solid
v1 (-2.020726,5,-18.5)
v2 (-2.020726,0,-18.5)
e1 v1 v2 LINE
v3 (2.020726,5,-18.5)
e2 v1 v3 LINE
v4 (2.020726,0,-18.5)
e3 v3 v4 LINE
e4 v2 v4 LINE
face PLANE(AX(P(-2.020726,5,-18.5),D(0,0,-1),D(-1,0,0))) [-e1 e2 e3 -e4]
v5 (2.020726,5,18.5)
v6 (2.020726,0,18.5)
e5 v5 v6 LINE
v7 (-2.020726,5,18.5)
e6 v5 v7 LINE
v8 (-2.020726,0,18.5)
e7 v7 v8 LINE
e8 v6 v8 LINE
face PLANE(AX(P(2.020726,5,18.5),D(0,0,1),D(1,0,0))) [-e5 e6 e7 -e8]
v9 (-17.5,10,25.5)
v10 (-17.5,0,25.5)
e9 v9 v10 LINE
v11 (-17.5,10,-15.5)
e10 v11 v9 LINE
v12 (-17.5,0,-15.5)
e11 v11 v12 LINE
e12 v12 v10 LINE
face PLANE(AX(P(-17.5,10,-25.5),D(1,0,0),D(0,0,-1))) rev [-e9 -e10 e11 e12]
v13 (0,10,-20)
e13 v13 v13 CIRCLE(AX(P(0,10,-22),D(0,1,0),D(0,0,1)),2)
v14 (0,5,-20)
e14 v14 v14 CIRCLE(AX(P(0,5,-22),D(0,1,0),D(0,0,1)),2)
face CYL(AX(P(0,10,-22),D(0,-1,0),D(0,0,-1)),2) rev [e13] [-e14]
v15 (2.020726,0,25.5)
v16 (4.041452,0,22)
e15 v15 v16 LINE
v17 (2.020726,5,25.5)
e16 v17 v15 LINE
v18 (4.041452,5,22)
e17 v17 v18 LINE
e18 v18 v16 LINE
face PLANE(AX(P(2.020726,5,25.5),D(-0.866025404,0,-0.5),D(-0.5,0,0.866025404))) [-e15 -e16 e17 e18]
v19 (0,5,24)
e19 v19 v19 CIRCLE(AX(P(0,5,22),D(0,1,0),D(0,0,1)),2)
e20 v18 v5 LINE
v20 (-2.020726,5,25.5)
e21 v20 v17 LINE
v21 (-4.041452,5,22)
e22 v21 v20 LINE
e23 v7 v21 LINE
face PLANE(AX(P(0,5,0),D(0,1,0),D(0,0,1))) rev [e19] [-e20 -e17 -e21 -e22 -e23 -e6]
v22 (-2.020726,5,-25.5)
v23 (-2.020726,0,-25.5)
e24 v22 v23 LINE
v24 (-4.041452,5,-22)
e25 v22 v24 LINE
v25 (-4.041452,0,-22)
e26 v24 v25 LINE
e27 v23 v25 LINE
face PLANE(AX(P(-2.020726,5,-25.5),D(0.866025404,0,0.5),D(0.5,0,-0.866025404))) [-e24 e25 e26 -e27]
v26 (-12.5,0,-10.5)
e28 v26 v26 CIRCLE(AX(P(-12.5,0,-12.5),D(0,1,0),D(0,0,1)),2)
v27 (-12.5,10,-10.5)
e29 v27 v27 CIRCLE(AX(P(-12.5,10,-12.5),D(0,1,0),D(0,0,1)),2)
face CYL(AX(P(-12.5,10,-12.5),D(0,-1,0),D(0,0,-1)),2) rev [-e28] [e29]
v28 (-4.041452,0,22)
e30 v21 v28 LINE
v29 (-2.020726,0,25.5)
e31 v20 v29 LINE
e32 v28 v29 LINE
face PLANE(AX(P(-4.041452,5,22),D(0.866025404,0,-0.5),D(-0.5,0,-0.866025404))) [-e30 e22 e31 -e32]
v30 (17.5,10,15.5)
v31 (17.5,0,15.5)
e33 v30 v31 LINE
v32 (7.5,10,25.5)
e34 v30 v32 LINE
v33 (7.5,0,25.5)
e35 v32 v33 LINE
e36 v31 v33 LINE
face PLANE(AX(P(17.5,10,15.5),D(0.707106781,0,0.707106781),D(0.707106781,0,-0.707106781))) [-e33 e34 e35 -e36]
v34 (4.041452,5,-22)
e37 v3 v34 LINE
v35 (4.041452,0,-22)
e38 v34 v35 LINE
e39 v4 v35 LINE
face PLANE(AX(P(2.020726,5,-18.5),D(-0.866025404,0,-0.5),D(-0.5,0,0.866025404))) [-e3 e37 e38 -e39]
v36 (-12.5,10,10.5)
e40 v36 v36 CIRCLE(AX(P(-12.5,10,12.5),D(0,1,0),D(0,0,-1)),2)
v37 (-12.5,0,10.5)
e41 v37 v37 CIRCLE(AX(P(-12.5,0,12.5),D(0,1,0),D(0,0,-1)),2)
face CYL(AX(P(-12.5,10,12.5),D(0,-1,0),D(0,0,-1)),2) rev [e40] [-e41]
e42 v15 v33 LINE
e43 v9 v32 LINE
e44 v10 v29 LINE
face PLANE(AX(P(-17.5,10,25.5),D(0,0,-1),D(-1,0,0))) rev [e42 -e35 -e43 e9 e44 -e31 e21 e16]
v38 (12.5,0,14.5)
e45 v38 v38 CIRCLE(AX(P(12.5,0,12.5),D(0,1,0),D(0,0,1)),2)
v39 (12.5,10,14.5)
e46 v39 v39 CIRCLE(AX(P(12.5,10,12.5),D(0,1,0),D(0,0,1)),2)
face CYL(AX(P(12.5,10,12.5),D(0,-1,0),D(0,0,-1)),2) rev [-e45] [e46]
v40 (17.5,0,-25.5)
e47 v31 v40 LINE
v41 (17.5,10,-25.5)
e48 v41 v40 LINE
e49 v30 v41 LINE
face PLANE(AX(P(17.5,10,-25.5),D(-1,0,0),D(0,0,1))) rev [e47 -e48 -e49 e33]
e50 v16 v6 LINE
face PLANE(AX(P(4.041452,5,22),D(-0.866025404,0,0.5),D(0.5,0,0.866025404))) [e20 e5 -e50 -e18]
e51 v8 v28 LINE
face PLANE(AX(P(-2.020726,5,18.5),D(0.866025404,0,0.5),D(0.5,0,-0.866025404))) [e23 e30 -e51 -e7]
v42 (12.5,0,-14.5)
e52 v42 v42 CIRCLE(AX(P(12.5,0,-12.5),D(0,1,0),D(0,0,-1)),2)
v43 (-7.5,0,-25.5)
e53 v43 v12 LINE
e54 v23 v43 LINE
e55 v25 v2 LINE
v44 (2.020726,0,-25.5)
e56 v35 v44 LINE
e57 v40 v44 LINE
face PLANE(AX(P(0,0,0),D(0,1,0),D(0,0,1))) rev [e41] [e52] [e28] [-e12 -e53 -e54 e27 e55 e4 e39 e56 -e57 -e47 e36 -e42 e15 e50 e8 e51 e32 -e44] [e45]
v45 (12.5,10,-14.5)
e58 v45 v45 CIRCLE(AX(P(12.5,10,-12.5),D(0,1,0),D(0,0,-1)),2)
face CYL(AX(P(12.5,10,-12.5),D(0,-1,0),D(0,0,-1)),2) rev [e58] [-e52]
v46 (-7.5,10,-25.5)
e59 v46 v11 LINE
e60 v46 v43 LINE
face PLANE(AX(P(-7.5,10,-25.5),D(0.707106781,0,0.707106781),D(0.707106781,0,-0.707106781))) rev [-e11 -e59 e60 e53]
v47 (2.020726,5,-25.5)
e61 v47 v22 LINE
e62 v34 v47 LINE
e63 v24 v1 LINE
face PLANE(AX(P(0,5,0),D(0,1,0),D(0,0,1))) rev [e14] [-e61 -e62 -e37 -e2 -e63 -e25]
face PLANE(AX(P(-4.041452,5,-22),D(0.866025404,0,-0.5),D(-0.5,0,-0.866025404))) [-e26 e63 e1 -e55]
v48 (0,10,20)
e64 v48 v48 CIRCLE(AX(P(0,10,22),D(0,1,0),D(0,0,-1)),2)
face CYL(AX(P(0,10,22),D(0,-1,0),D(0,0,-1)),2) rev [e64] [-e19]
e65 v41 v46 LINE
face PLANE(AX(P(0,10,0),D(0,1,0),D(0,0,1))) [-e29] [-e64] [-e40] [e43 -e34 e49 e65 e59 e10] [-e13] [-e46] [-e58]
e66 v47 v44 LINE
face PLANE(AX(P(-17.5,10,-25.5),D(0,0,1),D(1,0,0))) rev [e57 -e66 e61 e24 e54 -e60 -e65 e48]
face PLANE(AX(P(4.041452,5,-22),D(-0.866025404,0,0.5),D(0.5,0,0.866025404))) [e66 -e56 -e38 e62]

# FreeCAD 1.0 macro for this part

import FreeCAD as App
import Part
import Sketcher

V = App.Vector
Q = App.Units.Quantity


def add_polygon(sketch, points):
    """Adds a closed chain of lines whose ends are joined by coincident constraints."""
    first, n = sketch.GeometryCount, len(points)
    for a, b in zip(points, points[1:] + points[:1]):
        sketch.addGeometry(Part.LineSegment(App.Vector(*a, 0), App.Vector(*b, 0)), False)
    for i in range(n):
        sketch.addConstraint(Sketcher.Constraint("Coincident", first + i, 2, first + (i + 1) % n, 1))

doc = App.newDocument("Part")
params = doc.addObject("Spreadsheet::Sheet", "Params")
for row, (alias, value) in enumerate([
    ("sketch1_diameter", "4 mm"),
    ("sketch1_width", "35 mm"),
    ("sketch1_height", "51 mm"),
    ("pad1_length", "10 mm"),
    ("pocket1_length", "5 mm"),
    ("sketch3_width", "10 mm"),
], start=1):
    params.set(f"A{row}", alias)
    params.set(f"B{row}", "=" + value)
    params.setAlias(f"B{row}", alias)

body = doc.addObject("PartDesign::Body", "Body")

# Sketch on XZ plane
sketch1 = doc.addObject("Sketcher::SketchObject", "Sketch")
body.addObject(sketch1)
sketch1.AttachmentSupport = (doc.XZ_Plane, [""])
sketch1.MapMode = "FlatFace"
add_polygon(sketch1, [(-17.5, -25.5), (-17.5, 25.5), (17.5, 25.5), (17.5, -25.5)])  # lines 0-3
sketch1.addGeometry(Part.Circle(V(-12.5, 12.5, 0), V(0, 0, 1), 2), False)  # 4
sketch1.addGeometry(Part.Circle(V(0, 22, 0), V(0, 0, 1), 2), False)  # 5
sketch1.addGeometry(Part.Circle(V(12.5, 12.5, 0), V(0, 0, 1), 2), False)  # 6
sketch1.addGeometry(Part.Circle(V(-12.5, -12.5, 0), V(0, 0, 1), 2), False)  # 7
sketch1.addGeometry(Part.Circle(V(0, -22, 0), V(0, 0, 1), 2), False)  # 8
sketch1.addGeometry(Part.Circle(V(12.5, -12.5, 0), V(0, 0, 1), 2), False)  # 9
sketch1.addConstraint([
    Sketcher.Constraint("Vertical", 0),
    Sketcher.Constraint("Horizontal", 1),
    Sketcher.Constraint("Vertical", 2),
    Sketcher.Constraint("Horizontal", 3),
    Sketcher.Constraint("Equal", 4, 5),
    Sketcher.Constraint("Equal", 5, 6),
    Sketcher.Constraint("Equal", 6, 7),
    Sketcher.Constraint("Equal", 7, 8),
    Sketcher.Constraint("Equal", 8, 9),
    Sketcher.Constraint("Symmetric", 6, 3, 7, 3, -1, 1),
    Sketcher.Constraint("Symmetric", 5, 3, 8, 3, -1, 1),
    Sketcher.Constraint("Symmetric", 4, 3, 9, 3, -1, 1),
    Sketcher.Constraint("Symmetric", 0, 2, 2, 2, -1, 1),
    Sketcher.Constraint("Symmetric", 4, 3, 6, 3, -2),
    Sketcher.Constraint("PointOnObject", 5, 3, -2),
    Sketcher.Constraint("Diameter", 4, Q("4 mm")),
    Sketcher.Constraint("DistanceX", 1, 1, 1, 2, Q("35 mm")),
    Sketcher.Constraint("DistanceY", 0, 1, 0, 2, Q("51 mm")),
    Sketcher.Constraint("DistanceY", -1, 1, 5, 3, Q("22 mm")),
    Sketcher.Constraint("DistanceX", 4, 3, 6, 3, Q("25 mm")),
    Sketcher.Constraint("DistanceY", 7, 3, 4, 3, Q("25 mm")),
])
sketch1.setExpression("Constraints[19]", "Params.sketch1_diameter")
sketch1.setExpression("Constraints[20]", "Params.sketch1_width")
sketch1.setExpression("Constraints[21]", "Params.sketch1_height")
pad1 = doc.addObject("PartDesign::Pad", "Pad")
body.addObject(pad1)
pad1.Profile = sketch1
pad1.setExpression("Length", "Params.pad1_length")
pad1.Reversed = True

# Sketch on XZ plane
sketch2 = doc.addObject("Sketcher::SketchObject", "Sketch001")
body.addObject(sketch2)
sketch2.AttachmentSupport = (doc.XZ_Plane, [""])
sketch2.MapMode = "FlatFace"
add_polygon(sketch2, [(4, -22), (2, -25.5), (-2, -25.5), (-4, -22), (-2, -18.5), (2, -18.5)])  # lines 0-5
add_polygon(sketch2, [(4, 22), (2, 18.5), (-2, 18.5), (-4, 22), (-2, 25.5), (2, 25.5)])  # lines 6-11
sketch2.addConstraint([
    Sketcher.Constraint("Horizontal", 1),
    Sketcher.Constraint("Horizontal", 4),
    Sketcher.Constraint("Horizontal", 7),
    Sketcher.Constraint("Horizontal", 10),
    Sketcher.Constraint("Symmetric", 3, 2, 6, 2, -1, 1),
    Sketcher.Constraint("Symmetric", 5, 2, 8, 2, -1, 1),
    Sketcher.Constraint("Symmetric", 0, 2, 9, 2, -1, 1),
    Sketcher.Constraint("Symmetric", 2, 2, 11, 2, -1, 1),
    Sketcher.Constraint("Symmetric", 2, 2, 5, 2, -2),
    Sketcher.Constraint("Parallel", 0, 3),
    Sketcher.Constraint("Parallel", 2, 5),
    Sketcher.Constraint("Parallel", 5, 8),
    Sketcher.Constraint("Parallel", 8, 11),
    Sketcher.Constraint("Vertical", 1, 2, 3, 2),
    Sketcher.Constraint("Vertical", 0, 2, 4, 2),
    Sketcher.Constraint("Angle", 0, Q("-120 deg")),
    Sketcher.Constraint("DistanceY", 2, 2, -1, 1, Q("22 mm")),
    Sketcher.Constraint("DistanceY", 1, 2, 3, 2, Q("7 mm")),
    Sketcher.Constraint("DistanceX", 1, 2, 1, 1, Q("4.041452 mm")),
])
pocket1 = doc.addObject("PartDesign::Pocket", "Pocket")
body.addObject(pocket1)
pocket1.Profile = sketch2
pocket1.setExpression("Length", "Params.pocket1_length")

# Sketch on XZ plane
sketch3 = doc.addObject("Sketcher::SketchObject", "Sketch002")
body.addObject(sketch3)
sketch3.AttachmentSupport = (doc.XZ_Plane, [""])
sketch3.MapMode = "FlatFace"
add_polygon(sketch3, [(-18, -16), (-8, -26), (-18, -26)])  # lines 0-2
add_polygon(sketch3, [(18, 16), (8, 26), (18, 26)])  # lines 3-5
sketch3.addConstraint([
    Sketcher.Constraint("Horizontal", 1),
    Sketcher.Constraint("Vertical", 2),
    Sketcher.Constraint("Horizontal", 4),
    Sketcher.Constraint("Vertical", 5),
    Sketcher.Constraint("Symmetric", 0, 2, 3, 2, -1, 1),
    Sketcher.Constraint("Symmetric", 2, 2, 5, 2, -1, 1),
    Sketcher.Constraint("Equal", 4, 2),
    Sketcher.Constraint("DistanceX", 1, 2, 1, 1, Q("10 mm")),
    Sketcher.Constraint("DistanceX", 2, 2, 3, 2, Q("25 mm")),
    Sketcher.Constraint("DistanceY", 2, 2, 3, 2, Q("41 mm")),
])
sketch3.setExpression("Constraints[13]", "Params.sketch3_width")
pocket2 = doc.addObject("PartDesign::Pocket", "Pocket001")
body.addObject(pocket2)
pocket2.Profile = sketch3
pocket2.Type = "ThroughAll"

doc.recompute()
